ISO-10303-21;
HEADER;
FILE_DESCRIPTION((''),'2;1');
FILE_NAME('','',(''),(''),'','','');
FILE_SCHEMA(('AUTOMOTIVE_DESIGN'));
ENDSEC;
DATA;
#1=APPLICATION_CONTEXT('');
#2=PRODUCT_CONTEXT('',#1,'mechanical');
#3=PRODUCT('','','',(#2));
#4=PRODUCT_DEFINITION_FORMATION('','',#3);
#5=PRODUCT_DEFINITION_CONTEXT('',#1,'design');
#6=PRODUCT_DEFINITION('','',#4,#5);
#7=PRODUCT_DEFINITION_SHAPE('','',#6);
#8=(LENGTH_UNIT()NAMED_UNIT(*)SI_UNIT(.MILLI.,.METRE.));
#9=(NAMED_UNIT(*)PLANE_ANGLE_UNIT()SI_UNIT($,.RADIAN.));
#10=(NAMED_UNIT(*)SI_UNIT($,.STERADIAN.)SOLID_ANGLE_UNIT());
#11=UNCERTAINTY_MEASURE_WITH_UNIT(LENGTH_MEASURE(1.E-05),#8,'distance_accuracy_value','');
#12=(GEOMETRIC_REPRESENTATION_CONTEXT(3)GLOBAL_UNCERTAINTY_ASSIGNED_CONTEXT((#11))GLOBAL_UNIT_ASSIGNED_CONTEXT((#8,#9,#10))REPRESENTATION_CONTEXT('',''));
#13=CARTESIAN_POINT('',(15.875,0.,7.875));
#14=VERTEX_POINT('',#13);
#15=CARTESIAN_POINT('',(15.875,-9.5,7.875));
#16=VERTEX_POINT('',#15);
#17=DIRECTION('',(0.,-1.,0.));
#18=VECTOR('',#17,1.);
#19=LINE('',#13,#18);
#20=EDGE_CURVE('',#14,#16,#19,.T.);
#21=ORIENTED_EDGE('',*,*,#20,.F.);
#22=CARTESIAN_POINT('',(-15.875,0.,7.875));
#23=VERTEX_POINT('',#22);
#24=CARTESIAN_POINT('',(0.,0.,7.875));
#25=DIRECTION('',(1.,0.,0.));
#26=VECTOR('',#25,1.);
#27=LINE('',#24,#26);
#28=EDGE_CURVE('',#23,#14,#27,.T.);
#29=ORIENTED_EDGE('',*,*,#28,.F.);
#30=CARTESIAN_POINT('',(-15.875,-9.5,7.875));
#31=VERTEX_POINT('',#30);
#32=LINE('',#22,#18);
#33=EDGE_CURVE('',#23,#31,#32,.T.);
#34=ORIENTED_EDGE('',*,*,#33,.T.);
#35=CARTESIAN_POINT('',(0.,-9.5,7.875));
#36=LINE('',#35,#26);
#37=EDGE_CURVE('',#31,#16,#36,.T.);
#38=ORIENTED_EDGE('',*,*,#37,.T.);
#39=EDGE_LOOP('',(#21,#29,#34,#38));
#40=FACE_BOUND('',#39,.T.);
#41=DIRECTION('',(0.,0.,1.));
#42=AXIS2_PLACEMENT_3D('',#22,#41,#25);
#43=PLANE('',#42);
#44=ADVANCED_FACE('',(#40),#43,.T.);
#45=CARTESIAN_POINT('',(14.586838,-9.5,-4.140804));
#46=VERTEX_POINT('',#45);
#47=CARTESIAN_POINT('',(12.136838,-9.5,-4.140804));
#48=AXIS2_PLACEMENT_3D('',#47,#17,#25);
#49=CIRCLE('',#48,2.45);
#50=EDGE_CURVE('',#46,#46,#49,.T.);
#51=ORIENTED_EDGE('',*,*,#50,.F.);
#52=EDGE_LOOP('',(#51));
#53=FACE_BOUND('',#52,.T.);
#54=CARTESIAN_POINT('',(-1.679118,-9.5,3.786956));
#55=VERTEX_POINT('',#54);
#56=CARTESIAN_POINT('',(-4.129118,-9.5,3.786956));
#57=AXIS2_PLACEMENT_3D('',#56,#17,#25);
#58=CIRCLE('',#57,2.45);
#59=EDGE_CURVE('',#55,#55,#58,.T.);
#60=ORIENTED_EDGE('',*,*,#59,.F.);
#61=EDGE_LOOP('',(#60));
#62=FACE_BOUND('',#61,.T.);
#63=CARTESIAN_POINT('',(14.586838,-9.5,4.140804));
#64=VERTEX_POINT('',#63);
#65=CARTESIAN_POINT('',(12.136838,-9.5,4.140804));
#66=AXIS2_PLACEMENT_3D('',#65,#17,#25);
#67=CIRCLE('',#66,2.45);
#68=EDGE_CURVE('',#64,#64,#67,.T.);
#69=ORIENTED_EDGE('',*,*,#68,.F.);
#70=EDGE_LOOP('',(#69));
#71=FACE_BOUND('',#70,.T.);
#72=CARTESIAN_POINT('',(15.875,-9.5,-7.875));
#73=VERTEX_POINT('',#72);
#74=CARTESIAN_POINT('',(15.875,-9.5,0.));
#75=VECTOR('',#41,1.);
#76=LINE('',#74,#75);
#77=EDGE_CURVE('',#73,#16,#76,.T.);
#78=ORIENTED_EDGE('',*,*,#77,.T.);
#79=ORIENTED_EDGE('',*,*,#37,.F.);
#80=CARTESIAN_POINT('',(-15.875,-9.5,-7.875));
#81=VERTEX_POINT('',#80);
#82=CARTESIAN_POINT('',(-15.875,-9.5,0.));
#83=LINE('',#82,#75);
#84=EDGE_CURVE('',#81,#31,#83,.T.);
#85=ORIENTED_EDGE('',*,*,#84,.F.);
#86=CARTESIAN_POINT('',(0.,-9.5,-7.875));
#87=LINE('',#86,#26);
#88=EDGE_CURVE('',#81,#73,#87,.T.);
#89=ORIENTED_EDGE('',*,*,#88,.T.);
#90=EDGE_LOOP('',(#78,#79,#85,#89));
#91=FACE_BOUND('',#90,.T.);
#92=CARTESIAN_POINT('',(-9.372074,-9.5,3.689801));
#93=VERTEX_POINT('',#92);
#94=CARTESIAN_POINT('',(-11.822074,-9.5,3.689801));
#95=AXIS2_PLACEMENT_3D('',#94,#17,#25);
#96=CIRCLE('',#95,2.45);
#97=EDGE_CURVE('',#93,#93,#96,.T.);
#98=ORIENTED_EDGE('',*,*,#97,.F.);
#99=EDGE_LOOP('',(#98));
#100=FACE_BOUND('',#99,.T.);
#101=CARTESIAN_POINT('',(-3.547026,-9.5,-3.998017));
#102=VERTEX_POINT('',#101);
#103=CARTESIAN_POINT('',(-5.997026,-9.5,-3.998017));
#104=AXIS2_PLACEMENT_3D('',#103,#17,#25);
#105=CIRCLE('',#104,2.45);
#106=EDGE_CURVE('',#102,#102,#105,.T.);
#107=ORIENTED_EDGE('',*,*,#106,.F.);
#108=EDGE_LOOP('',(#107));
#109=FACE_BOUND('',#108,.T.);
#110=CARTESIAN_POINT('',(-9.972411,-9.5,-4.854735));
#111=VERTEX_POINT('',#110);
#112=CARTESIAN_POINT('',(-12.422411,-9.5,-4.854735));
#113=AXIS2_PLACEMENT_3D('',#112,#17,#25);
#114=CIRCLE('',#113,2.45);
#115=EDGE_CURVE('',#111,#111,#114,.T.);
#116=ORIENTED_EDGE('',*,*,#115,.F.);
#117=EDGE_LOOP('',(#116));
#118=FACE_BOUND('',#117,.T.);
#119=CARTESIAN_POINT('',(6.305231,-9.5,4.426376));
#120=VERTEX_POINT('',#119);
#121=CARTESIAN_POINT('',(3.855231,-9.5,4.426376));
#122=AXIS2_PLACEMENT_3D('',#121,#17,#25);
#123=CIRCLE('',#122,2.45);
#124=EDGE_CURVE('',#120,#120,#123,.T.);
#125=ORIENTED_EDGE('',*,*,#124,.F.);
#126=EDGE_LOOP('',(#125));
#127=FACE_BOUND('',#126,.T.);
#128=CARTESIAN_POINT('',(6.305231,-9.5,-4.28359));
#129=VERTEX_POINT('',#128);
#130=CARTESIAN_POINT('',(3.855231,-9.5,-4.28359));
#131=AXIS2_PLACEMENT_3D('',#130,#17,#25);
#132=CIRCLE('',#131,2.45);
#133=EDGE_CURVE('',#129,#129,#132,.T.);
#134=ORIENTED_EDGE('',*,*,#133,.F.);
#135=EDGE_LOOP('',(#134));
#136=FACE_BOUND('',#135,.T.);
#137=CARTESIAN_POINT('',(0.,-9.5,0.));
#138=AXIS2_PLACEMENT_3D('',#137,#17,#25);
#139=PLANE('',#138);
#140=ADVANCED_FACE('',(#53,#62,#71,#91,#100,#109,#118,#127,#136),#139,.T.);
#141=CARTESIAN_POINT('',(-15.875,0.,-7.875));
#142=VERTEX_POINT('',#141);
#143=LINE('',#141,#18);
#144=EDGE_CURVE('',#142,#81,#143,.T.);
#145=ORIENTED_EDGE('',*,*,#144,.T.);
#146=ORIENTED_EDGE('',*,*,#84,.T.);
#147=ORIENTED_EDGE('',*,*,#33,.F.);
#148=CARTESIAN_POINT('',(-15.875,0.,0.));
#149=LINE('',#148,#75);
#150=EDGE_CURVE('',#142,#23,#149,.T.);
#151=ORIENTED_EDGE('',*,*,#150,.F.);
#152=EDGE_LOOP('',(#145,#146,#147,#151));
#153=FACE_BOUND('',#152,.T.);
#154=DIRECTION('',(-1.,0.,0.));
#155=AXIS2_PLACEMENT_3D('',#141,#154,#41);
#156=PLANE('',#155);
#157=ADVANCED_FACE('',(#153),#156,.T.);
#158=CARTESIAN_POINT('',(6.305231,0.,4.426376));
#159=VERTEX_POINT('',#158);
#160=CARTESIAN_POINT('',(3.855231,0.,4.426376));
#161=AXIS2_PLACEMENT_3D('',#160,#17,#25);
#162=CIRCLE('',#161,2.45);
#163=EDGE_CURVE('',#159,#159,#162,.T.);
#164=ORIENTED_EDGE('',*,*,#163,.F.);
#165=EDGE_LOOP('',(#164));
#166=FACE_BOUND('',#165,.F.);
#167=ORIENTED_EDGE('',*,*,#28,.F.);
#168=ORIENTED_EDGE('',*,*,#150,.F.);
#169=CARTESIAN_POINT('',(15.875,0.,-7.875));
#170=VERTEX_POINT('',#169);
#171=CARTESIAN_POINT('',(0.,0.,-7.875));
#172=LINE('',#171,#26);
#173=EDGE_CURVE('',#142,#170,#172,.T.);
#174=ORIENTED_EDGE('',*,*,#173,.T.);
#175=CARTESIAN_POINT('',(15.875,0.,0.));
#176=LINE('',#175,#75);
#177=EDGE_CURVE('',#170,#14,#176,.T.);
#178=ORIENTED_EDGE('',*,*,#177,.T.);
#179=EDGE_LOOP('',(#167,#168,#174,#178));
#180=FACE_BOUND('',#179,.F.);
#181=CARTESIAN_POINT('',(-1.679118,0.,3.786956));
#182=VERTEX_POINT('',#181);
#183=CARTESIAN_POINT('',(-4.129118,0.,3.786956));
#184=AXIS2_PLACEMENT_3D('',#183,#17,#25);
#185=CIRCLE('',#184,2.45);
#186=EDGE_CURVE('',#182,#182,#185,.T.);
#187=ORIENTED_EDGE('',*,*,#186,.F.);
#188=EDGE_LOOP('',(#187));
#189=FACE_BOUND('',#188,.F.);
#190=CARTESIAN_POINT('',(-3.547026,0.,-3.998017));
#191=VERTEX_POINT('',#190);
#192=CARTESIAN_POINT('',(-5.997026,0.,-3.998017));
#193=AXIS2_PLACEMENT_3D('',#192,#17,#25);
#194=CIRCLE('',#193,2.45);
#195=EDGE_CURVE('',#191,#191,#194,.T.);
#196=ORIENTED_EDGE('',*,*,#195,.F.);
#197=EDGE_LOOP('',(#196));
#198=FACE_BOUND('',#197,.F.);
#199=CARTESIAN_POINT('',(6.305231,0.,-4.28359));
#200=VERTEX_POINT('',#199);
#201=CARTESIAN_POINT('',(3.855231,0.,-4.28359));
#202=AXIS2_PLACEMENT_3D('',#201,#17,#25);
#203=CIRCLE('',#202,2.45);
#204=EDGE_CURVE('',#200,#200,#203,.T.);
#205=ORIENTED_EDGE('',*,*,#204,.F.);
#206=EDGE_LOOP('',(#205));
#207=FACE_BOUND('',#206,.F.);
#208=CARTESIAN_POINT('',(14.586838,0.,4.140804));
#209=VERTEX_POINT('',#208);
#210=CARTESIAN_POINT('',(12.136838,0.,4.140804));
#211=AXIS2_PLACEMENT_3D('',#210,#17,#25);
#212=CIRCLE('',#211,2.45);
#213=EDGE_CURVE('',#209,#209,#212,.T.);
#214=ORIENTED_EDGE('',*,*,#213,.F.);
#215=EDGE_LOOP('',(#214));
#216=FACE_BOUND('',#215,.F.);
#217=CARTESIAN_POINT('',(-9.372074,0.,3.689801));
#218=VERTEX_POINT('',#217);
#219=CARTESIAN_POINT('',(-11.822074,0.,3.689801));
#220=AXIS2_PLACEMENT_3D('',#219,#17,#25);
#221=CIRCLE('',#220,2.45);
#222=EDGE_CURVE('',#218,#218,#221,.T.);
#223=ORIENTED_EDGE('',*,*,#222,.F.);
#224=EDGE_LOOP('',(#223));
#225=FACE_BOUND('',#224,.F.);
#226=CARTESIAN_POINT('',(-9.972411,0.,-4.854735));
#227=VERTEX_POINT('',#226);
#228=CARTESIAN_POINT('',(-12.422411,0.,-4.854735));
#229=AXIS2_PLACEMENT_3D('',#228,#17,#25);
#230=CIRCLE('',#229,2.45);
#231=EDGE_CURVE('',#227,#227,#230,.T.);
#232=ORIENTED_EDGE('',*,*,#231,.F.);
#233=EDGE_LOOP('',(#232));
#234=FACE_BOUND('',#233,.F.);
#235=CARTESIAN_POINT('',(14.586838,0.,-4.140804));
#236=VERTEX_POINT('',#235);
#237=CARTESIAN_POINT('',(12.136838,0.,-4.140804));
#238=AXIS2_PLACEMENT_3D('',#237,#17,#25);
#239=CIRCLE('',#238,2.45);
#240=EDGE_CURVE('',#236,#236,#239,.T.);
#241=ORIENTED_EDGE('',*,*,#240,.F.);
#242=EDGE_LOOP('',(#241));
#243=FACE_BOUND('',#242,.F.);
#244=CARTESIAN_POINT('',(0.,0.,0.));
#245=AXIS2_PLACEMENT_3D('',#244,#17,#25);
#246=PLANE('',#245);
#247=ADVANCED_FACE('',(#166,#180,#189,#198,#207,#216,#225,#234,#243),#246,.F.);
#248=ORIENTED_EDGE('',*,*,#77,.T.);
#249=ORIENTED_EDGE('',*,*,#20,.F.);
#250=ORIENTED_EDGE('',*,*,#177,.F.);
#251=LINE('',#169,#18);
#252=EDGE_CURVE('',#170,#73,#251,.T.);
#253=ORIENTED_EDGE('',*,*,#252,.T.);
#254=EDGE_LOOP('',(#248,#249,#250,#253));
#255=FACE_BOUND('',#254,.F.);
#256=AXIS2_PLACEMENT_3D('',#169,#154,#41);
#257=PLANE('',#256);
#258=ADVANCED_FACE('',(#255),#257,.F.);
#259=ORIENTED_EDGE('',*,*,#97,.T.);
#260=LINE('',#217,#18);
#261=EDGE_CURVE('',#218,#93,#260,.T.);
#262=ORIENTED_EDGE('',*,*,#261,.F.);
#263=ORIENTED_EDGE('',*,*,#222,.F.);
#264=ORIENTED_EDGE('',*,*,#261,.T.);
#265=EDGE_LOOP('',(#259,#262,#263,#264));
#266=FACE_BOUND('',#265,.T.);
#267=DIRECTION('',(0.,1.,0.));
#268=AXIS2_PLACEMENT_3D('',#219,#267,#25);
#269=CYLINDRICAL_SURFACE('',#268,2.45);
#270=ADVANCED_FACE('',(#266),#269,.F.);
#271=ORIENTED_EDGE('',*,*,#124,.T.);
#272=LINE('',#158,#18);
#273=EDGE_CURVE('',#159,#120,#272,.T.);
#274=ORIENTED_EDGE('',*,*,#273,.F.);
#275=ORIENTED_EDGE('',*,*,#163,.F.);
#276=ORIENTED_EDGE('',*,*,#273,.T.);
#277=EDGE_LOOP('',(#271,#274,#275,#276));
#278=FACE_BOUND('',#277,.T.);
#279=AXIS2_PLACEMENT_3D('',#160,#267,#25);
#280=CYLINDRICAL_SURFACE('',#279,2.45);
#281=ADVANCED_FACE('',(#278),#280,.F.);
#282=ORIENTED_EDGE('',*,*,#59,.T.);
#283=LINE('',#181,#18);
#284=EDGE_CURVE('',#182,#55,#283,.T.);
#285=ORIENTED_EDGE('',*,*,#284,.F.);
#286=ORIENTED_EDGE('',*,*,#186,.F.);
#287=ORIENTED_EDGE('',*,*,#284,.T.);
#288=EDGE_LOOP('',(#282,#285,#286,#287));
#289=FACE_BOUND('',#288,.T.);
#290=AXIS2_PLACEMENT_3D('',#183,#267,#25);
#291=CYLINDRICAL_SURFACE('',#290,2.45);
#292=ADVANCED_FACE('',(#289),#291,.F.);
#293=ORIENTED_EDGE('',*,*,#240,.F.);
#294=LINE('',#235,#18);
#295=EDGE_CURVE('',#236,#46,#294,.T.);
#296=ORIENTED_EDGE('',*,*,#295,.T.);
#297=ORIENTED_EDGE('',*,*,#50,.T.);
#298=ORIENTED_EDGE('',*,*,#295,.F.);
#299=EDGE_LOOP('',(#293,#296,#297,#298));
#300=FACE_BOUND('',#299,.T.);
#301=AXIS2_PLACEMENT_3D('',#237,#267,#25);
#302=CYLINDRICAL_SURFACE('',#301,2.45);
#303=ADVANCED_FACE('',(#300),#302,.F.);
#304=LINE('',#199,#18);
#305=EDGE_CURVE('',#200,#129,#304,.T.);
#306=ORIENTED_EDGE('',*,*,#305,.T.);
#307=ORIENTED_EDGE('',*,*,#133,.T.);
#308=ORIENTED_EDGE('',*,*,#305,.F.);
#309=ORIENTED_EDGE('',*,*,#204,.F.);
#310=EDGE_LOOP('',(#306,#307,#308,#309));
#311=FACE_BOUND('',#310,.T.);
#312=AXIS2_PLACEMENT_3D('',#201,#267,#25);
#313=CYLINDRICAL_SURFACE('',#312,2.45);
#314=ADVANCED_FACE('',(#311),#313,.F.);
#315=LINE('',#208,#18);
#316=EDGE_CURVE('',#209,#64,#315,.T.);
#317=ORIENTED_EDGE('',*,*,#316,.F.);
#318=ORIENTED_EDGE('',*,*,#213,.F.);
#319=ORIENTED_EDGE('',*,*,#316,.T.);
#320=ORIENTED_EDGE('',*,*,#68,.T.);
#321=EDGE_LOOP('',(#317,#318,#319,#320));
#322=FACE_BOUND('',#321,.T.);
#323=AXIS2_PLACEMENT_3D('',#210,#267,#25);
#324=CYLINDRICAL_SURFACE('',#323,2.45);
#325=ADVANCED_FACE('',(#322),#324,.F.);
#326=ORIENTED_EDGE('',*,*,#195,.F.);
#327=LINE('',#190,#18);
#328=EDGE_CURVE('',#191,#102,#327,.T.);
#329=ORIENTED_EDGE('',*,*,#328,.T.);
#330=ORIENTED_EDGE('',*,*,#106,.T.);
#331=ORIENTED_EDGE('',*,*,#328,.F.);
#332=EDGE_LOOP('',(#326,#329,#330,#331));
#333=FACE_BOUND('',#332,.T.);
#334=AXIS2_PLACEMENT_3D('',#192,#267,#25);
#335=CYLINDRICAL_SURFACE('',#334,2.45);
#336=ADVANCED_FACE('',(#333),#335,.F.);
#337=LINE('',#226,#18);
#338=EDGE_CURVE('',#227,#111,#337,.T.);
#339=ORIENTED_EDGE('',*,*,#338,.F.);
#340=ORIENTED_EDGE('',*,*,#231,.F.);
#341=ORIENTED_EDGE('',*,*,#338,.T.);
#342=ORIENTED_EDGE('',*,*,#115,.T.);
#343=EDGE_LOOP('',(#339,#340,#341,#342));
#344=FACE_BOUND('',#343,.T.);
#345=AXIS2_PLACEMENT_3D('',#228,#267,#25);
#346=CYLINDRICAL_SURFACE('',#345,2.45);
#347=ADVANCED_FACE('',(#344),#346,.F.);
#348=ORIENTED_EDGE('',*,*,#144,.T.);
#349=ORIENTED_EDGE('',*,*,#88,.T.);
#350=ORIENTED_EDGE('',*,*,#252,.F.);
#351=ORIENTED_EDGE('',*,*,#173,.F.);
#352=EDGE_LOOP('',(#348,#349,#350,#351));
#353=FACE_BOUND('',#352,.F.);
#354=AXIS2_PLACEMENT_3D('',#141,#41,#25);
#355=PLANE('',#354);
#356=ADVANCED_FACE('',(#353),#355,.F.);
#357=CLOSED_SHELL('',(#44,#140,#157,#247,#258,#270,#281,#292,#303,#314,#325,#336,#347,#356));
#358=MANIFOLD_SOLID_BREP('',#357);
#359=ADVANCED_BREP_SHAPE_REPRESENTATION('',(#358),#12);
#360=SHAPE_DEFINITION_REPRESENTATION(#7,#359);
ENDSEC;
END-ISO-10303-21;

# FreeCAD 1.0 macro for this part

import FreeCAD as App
import Part
import Sketcher


def add_polygon(sketch, points):
    """Adds a closed chain of lines whose ends are joined by coincident constraints."""
    first, n = sketch.GeometryCount, len(points)
    for a, b in zip(points, points[1:] + points[:1]):
        sketch.addGeometry(Part.LineSegment(App.Vector(*a, 0), App.Vector(*b, 0)), False)
    for i in range(n):
        sketch.addConstraint(Sketcher.Constraint("Coincident", first + i, 2, first + (i + 1) % n, 1))

doc = App.newDocument("Part")
params = doc.addObject("Spreadsheet::Sheet", "Params")
for row, (alias, value) in enumerate([
    ("sketch1_diameter", "4.9 mm"),
    ("sketch1_width", "31.75 mm"),
    ("sketch1_height", "15.75 mm"),
    ("pad1_length", "9.5 mm"),
], start=1):
    params.set(f"A{row}", alias)
    params.set(f"B{row}", "=" + value)
    params.setAlias(f"B{row}", alias)

body = doc.addObject("PartDesign::Body", "Body")

# Sketch on XZ plane
sketch1 = doc.addObject("Sketcher::SketchObject", "Sketch")
body.addObject(sketch1)
sketch1.AttachmentSupport = (doc.XZ_Plane, [""])
sketch1.MapMode = "FlatFace"
add_polygon(sketch1, [(-15.9, 7.9), (-15.9, -7.9), (15.9, -7.9), (15.9, 7.9)])  # lines 0-3
sketch1.addGeometry(Part.Circle(App.Vector(-12.4, -4.9, 0), App.Vector(0, 0, 1), 2.5), False)  # 4
sketch1.addGeometry(Part.Circle(App.Vector(-6, -4, 0), App.Vector(0, 0, 1), 2.5), False)  # 5
sketch1.addGeometry(Part.Circle(App.Vector(3.9, -4.3, 0), App.Vector(0, 0, 1), 2.5), False)  # 6
sketch1.addGeometry(Part.Circle(App.Vector(12.1, -4.1, 0), App.Vector(0, 0, 1), 2.5), False)  # 7
sketch1.addGeometry(Part.Circle(App.Vector(-11.8, 3.7, 0), App.Vector(0, 0, 1), 2.5), False)  # 8
sketch1.addGeometry(Part.Circle(App.Vector(-4.1, 3.8, 0), App.Vector(0, 0, 1), 2.5), False)  # 9
sketch1.addGeometry(Part.Circle(App.Vector(3.9, 4.4, 0), App.Vector(0, 0, 1), 2.5), False)  # 10
sketch1.addGeometry(Part.Circle(App.Vector(12.1, 4.1, 0), App.Vector(0, 0, 1), 2.5), False)  # 11
sketch1.addConstraint([
    Sketcher.Constraint("Vertical", 0),
    Sketcher.Constraint("Horizontal", 1),
    Sketcher.Constraint("Vertical", 2),
    Sketcher.Constraint("Horizontal", 3),
    Sketcher.Constraint("Equal", 4, 5),
    Sketcher.Constraint("Equal", 5, 6),
    Sketcher.Constraint("Equal", 6, 7),
    Sketcher.Constraint("Equal", 7, 8),
    Sketcher.Constraint("Equal", 8, 9),
    Sketcher.Constraint("Equal", 9, 10),
    Sketcher.Constraint("Equal", 10, 11),
    Sketcher.Constraint("Symmetric", 0, 2, 2, 2, -1, 1),
    Sketcher.Constraint("Symmetric", 7, 3, 11, 3, -1),
    Sketcher.Constraint("Vertical", 6, 3, 10, 3),
    Sketcher.Constraint("Diameter", 4, 4.9),
    Sketcher.Constraint("DistanceX", 1, 1, 1, 2, 31.75),
    Sketcher.Constraint("DistanceY", 0, 2, 0, 1, 15.75),
    Sketcher.Constraint("DistanceY", -1, 1, 8, 3, 3.689801),
    Sketcher.Constraint("DistanceX", 4, 3, -1, 1, 12.422411),
    Sketcher.Constraint("DistanceX", -1, 1, 6, 3, 3.855231),
    Sketcher.Constraint("DistanceY", 6, 3, -1, 1, 4.28359),
    Sketcher.Constraint("DistanceX", 4, 3, 7, 3, 24.559249),
    Sketcher.Constraint("DistanceY", 4, 3, 7, 3, 0.713931),
    Sketcher.Constraint("DistanceX", 8, 3, 5, 3, 5.825048),
    Sketcher.Constraint("DistanceX", 8, 3, 7, 3, 23.958912),
    Sketcher.Constraint("DistanceX", 9, 3, 6, 3, 7.984349),
    Sketcher.Constraint("DistanceY", 4, 3, 9, 3, 8.641691),
    Sketcher.Constraint("DistanceY", 9, 3, 10, 3, 0.63942),
    Sketcher.Constraint("DistanceY", 9, 3, 11, 3, 0.353848),
    Sketcher.Constraint("DistanceY", 5, 3, 11, 3, 8.138821),
])
sketch1.setExpression("Constraints[18]", "Params.sketch1_diameter")
sketch1.setExpression("Constraints[19]", "Params.sketch1_width")
sketch1.setExpression("Constraints[20]", "Params.sketch1_height")
pad1 = doc.addObject("PartDesign::Pad", "Pad")
body.addObject(pad1)
pad1.Profile = sketch1
pad1.setExpression("Length", "Params.pad1_length")

doc.recompute()
